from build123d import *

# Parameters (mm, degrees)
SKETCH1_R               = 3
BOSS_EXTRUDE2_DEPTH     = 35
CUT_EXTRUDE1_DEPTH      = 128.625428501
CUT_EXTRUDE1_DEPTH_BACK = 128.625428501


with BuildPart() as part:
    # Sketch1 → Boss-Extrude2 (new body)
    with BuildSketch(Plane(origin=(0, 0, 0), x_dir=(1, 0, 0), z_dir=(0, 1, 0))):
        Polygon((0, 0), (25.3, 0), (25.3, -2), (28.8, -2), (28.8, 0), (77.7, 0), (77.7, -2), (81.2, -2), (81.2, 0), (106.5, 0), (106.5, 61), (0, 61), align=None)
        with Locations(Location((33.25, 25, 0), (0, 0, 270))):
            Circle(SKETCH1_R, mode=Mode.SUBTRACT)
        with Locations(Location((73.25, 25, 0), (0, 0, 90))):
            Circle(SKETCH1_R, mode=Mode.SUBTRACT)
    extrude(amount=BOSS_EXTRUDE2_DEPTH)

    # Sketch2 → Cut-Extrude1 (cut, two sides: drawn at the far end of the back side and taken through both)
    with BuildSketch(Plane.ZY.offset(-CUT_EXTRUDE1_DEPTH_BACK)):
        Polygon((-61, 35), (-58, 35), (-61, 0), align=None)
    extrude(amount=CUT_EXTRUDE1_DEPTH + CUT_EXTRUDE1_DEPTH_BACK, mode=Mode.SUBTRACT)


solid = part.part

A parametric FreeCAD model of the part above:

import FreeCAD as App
import Part
import Sketcher
from FreeCAD import Vector
Q = App.Units.Quantity


def add_polygon(sketch, points):
    """Adds a closed chain of lines whose ends are joined by coincident constraints."""
    first, n = sketch.GeometryCount, len(points)
    for a, b in zip(points, points[1:] + points[:1]):
        sketch.addGeometry(Part.LineSegment(App.Vector(*a, 0), App.Vector(*b, 0)), False)
    for i in range(n):
        sketch.addConstraint(Sketcher.Constraint("Coincident", first + i, 2, first + (i + 1) % n, 1))

doc = App.newDocument("Part")
params = doc.addObject("Spreadsheet::Sheet", "Params")
for row, (alias, value) in enumerate([
    ("sketch1_diameter", "6 mm"),
    ("sketch1_height", "2 mm"),
    ("sketch1_height2", "61 mm"),
    ("sketch1_width", "25.3 mm"),
    ("sketch1_width2", "3.5 mm"),
    ("pad1_length", "35 mm"),
    ("sketch2_width", "35 mm"),
    ("sketch2_height", "3 mm"),
], start=1):
    params.set(f"A{row}", alias)
    params.set(f"B{row}", "=" + value)
    params.setAlias(f"B{row}", alias)

body = doc.addObject("PartDesign::Body", "Body")

sketch1 = doc.addObject("Sketcher::SketchObject", "Sketch")
body.addObject(sketch1)
sketch1.AttachmentSupport = (doc.XZ_Plane, [""])
sketch1.MapMode = "FlatFace"
add_polygon(sketch1, [(0, 0), (25.3, 0), (25.3, 2), (28.8, 2), (28.8, 0), (77.7, 0), (77.7, 2), (81.2, 2), (81.2, 0), (106.5, 0), (106.5, -61), (0, -61)])
sketch1.addGeometry(Part.Circle(Vector(33.2, -25, 0), Vector(0, 0, 1), 3), False)
sketch1.addGeometry(Part.Circle(Vector(73.2, -25, 0), Vector(0, 0, 1), 3), False)
sketch1.addConstraint(Sketcher.Constraint("Horizontal", 0))
sketch1.addConstraint(Sketcher.Constraint("Vertical", 1))
sketch1.addConstraint(Sketcher.Constraint("Horizontal", 2))
sketch1.addConstraint(Sketcher.Constraint("Vertical", 3))
sketch1.addConstraint(Sketcher.Constraint("Horizontal", 4))
sketch1.addConstraint(Sketcher.Constraint("Vertical", 5))
sketch1.addConstraint(Sketcher.Constraint("Horizontal", 6))
sketch1.addConstraint(Sketcher.Constraint("Vertical", 7))
sketch1.addConstraint(Sketcher.Constraint("Horizontal", 8))
sketch1.addConstraint(Sketcher.Constraint("Vertical", 9))
sketch1.addConstraint(Sketcher.Constraint("Horizontal", 10))
sketch1.addConstraint(Sketcher.Constraint("Vertical", 11))
sketch1.addConstraint(Sketcher.Constraint("Coincident", 11, 2, -1, 1))
sketch1.addConstraint(Sketcher.Constraint("Equal", 12, 13))
sketch1.addConstraint(Sketcher.Constraint("PointOnObject", 3, 2, -1))
sketch1.addConstraint(Sketcher.Constraint("PointOnObject", 7, 2, -1))
sketch1.addConstraint(Sketcher.Constraint("Horizontal", 12, 3, 13, 3))
sketch1.addConstraint(Sketcher.Constraint("Horizontal", 2, 2, 5, 2))
sketch1.addConstraint(Sketcher.Constraint("Equal", 2, 6))
sketch1.addConstraint(Sketcher.Constraint("Equal", 0, 8))
sketch1.addConstraint(Sketcher.Constraint("Diameter", 12, Q("6 mm")))
sketch1.addConstraint(Sketcher.Constraint("DistanceY", 1, 1, 1, 2, Q("2 mm")))
sketch1.addConstraint(Sketcher.Constraint("DistanceY", 9, 2, 9, 1, Q("61 mm")))
sketch1.addConstraint(Sketcher.Constraint("DistanceX", 0, 1, 0, 2, Q("25.3 mm")))
sketch1.addConstraint(Sketcher.Constraint("DistanceX", 2, 1, 2, 2, Q("3.5 mm")))
sketch1.addConstraint(Sketcher.Constraint("DistanceX", 4, 1, 4, 2, Q("48.9 mm")))
sketch1.addConstraint(Sketcher.Constraint("DistanceY", 12, 3, -1, 1, Q("25 mm")))
sketch1.addConstraint(Sketcher.Constraint("DistanceX", 12, 3, 13, 3, Q("40 mm")))
sketch1.addConstraint(Sketcher.Constraint("DistanceX", -1, 1, 12, 3, Q("33.25 mm")))
sketch1.setExpression("Constraints[32]", "Params.sketch1_diameter")
sketch1.setExpression("Constraints[33]", "Params.sketch1_height")
sketch1.setExpression("Constraints[34]", "Params.sketch1_height2")
sketch1.setExpression("Constraints[35]", "Params.sketch1_width")
sketch1.setExpression("Constraints[36]", "Params.sketch1_width2")
pad1 = doc.addObject("PartDesign::Pad", "Pad")
body.addObject(pad1)
pad1.Profile = sketch1
pad1.setExpression("Length", "Params.pad1_length")
pad1.Reversed = True

sketch2 = doc.addObject("Sketcher::SketchObject", "Sketch001")
body.addObject(sketch2)
sketch2.AttachmentSupport = (doc.YZ_Plane, [""])
sketch2.MapMode = "FlatFace"
add_polygon(sketch2, [(35, -58), (35, -61), (0, -61)])
sketch2.addConstraint(Sketcher.Constraint("Vertical", 0))
sketch2.addConstraint(Sketcher.Constraint("Horizontal", 1))
sketch2.addConstraint(Sketcher.Constraint("PointOnObject", 1, 2, -2))
sketch2.addConstraint(Sketcher.Constraint("DistanceX", 1, 2, 1, 1, Q("35 mm")))
sketch2.addConstraint(Sketcher.Constraint("DistanceY", 0, 2, 0, 1, Q("3 mm")))
sketch2.addConstraint(Sketcher.Constraint("DistanceY", 0, 2, -1, 1, Q("61 mm")))
sketch2.setExpression("Constraints[6]", "Params.sketch2_width")
sketch2.setExpression("Constraints[7]", "Params.sketch2_height")
pocket1 = doc.addObject("PartDesign::Pocket", "Pocket")
body.addObject(pocket1)
pocket1.Profile = sketch2
pocket1.Type = "ThroughAll"
pocket1.Midplane = True

doc.recompute()
